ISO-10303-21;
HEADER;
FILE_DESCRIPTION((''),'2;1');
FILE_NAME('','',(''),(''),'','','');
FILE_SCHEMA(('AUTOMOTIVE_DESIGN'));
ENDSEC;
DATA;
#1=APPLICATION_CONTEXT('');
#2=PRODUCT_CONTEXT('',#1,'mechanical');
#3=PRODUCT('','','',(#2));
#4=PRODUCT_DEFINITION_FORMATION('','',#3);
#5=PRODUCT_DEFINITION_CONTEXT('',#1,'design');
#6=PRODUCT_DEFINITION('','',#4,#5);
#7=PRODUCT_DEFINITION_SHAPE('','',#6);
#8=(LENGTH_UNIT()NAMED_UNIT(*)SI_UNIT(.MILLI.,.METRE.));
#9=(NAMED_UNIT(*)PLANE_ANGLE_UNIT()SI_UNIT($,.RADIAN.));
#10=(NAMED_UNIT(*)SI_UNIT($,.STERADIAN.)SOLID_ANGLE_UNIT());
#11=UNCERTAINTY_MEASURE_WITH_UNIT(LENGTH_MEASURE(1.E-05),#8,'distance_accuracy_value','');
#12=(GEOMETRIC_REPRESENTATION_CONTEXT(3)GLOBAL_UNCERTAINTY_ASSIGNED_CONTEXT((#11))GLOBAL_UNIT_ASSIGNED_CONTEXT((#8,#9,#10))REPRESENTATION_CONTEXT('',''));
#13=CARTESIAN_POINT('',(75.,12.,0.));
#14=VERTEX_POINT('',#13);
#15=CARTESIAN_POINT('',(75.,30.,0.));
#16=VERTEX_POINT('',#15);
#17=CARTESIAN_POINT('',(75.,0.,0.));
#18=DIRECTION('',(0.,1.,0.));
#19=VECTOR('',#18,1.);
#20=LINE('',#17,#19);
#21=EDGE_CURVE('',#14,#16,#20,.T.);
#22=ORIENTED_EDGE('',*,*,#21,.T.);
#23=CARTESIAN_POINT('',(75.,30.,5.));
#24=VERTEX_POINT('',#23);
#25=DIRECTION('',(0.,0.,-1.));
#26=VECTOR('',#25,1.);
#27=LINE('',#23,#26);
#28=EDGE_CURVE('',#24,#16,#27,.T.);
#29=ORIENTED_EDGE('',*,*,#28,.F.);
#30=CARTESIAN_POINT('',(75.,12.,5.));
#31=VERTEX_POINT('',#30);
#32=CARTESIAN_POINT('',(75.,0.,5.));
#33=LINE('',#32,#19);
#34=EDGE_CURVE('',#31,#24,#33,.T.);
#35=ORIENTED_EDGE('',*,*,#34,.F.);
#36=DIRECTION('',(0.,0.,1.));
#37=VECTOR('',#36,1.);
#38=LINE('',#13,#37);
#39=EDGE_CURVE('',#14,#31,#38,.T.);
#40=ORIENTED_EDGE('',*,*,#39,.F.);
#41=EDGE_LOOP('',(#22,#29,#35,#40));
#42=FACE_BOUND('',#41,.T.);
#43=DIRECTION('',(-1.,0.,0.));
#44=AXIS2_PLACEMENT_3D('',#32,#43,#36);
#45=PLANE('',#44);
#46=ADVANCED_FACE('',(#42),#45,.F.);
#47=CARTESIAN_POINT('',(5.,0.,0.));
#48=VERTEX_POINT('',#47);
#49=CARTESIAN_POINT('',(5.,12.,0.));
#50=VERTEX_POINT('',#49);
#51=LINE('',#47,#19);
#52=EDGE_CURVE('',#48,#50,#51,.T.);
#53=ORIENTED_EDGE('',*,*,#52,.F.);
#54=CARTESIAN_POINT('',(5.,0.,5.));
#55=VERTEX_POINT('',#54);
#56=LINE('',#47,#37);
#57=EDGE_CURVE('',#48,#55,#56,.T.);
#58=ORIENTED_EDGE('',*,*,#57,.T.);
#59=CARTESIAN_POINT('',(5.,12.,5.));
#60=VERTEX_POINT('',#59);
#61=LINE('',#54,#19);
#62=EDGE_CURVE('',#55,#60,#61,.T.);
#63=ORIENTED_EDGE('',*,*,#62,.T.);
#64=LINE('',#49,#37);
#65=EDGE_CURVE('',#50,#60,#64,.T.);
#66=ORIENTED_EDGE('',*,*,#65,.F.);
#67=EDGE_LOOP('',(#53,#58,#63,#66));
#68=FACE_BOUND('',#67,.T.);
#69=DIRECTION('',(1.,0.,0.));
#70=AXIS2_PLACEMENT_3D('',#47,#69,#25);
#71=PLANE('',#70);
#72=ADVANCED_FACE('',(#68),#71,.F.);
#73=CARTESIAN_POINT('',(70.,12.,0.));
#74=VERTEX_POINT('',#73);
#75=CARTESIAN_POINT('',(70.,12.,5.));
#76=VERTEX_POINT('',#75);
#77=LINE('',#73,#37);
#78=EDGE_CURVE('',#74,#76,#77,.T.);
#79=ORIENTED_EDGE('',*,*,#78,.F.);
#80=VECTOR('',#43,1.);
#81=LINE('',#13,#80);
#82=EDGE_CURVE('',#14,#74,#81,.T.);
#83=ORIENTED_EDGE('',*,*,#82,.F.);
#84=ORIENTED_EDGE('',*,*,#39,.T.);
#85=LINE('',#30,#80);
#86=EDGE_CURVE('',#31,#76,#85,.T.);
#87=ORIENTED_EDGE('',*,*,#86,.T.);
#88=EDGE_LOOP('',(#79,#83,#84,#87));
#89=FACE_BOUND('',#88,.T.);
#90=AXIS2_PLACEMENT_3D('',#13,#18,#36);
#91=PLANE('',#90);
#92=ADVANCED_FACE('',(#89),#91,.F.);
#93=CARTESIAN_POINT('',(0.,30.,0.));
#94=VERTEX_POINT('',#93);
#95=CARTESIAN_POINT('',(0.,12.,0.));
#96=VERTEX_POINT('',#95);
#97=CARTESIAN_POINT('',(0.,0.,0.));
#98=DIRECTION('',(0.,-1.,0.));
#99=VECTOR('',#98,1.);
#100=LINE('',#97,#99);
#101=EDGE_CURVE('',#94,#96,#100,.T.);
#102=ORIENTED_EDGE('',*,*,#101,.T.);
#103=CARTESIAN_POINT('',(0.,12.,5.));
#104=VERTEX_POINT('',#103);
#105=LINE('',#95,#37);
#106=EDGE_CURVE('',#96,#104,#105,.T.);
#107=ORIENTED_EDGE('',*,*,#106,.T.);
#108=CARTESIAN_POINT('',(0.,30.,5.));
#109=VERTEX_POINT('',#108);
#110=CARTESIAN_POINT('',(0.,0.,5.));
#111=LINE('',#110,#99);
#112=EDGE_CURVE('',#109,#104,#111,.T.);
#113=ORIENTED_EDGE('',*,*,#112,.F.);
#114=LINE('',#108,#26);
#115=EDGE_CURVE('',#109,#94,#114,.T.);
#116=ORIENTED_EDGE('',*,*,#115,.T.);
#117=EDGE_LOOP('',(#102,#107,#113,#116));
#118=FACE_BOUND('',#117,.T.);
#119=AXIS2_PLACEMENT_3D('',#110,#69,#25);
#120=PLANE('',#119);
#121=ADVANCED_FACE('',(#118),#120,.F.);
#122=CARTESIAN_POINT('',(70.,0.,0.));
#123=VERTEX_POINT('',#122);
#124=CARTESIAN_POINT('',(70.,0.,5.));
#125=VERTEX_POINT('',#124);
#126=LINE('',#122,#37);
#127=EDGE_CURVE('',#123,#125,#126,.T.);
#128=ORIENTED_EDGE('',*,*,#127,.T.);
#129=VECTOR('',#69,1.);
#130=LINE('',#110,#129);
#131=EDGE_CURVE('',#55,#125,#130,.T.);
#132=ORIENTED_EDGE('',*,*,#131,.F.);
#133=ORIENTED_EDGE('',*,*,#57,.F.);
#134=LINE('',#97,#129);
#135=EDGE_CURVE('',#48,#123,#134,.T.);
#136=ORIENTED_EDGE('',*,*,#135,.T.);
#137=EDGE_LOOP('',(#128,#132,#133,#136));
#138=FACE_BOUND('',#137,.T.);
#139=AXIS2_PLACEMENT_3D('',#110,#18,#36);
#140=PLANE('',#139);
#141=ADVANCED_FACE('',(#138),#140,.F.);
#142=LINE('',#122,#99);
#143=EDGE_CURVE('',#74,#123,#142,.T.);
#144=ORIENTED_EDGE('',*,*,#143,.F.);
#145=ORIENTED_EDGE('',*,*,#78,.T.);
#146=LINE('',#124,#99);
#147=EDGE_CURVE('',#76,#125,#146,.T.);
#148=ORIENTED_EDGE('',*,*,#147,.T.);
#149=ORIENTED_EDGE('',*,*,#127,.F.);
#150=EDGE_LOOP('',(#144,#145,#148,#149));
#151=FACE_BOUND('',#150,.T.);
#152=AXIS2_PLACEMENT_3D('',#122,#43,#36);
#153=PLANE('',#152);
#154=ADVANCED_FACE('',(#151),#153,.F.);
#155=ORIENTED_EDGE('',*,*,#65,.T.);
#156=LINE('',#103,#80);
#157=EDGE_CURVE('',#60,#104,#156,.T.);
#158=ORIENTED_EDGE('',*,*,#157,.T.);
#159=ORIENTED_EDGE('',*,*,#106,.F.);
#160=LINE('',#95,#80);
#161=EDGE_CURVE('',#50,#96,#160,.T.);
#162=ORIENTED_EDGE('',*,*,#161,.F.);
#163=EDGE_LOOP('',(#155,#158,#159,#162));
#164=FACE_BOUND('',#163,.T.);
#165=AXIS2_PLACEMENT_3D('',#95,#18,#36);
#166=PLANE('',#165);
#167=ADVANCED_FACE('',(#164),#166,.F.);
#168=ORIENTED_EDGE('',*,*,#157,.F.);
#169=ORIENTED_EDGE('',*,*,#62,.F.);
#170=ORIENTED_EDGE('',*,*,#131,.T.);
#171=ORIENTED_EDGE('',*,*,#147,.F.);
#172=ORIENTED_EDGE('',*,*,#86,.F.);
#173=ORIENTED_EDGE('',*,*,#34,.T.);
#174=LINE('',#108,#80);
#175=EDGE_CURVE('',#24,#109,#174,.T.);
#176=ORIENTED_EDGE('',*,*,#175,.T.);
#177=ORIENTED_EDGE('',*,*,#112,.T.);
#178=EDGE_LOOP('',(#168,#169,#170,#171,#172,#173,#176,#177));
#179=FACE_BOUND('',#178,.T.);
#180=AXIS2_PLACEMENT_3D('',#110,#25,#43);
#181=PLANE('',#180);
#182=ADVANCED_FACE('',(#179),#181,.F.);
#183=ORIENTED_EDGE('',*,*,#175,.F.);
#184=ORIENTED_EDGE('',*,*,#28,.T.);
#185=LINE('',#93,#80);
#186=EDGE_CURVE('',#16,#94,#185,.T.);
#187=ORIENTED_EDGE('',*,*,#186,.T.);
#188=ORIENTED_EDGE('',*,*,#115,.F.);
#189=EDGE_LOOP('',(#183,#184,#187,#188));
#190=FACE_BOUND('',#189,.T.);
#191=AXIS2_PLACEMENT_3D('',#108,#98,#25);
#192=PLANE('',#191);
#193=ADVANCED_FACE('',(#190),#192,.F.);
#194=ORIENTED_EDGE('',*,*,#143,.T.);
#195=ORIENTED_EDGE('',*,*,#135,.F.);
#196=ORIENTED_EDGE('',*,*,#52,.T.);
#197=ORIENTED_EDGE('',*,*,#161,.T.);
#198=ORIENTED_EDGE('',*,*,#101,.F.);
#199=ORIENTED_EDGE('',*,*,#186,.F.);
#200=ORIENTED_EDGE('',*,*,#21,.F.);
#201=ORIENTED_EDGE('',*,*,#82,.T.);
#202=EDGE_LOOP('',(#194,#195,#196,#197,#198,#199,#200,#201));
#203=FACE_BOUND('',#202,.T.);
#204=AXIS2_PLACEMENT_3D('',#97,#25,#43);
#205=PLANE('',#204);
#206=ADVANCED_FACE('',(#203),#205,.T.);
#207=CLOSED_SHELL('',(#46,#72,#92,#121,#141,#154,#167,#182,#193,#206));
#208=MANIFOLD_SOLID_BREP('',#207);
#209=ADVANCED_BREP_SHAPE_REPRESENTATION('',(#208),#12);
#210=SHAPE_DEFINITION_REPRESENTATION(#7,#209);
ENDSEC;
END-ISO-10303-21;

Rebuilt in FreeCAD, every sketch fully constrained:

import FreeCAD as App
import Part
import Sketcher

V = App.Vector
Q = App.Units.Quantity

doc = App.newDocument("Part")
body = doc.addObject("PartDesign::Body", "Body")

sketch1 = body.newObject("Sketcher::SketchObject", "Sketch")
sketch1.AttachmentSupport = (doc.getObject("XY_Plane"), [""])
sketch1.MapMode = "FlatFace"
sketch1.addGeometry([
    Part.LineSegment(V(0, 30, 0), V(0, 0, 0)),
    Part.LineSegment(V(0, 0, 0), V(75, 0, 0)),
    Part.LineSegment(V(75, 0, 0), V(75, 30, 0)),
    Part.LineSegment(V(75, 30, 0), V(0, 30, 0)),
], False)
sketch1.addConstraint([
    Sketcher.Constraint("Coincident", 0, 2, 1, 1),
    Sketcher.Constraint("Coincident", 1, 2, 2, 1),
    Sketcher.Constraint("Coincident", 2, 2, 3, 1),
    Sketcher.Constraint("Coincident", 3, 2, 0, 1),
    Sketcher.Constraint("Vertical", 0),
    Sketcher.Constraint("Horizontal", 1),
    Sketcher.Constraint("Vertical", 2),
    Sketcher.Constraint("Horizontal", 3),
    Sketcher.Constraint("Coincident", 0, 2, -1, 1),
    Sketcher.Constraint("DistanceX", 1, 1, 1, 2, Q("75 mm")),
    Sketcher.Constraint("DistanceY", 0, 2, 0, 1, Q("30 mm")),
])
pad1 = body.newObject("PartDesign::Pad", "Pad")
pad1.Profile = sketch1
pad1.Length = 5

sketch2 = body.newObject("Sketcher::SketchObject", "Sketch001")
sketch2.AttachmentSupport = (doc.getObject("XY_Plane"), [""])
sketch2.MapMode = "FlatFace"
sketch2.AttachmentOffset = App.Placement(V(0, 0, 5), App.Rotation())
sketch2.addGeometry([
    Part.LineSegment(V(0, 12, 0), V(0, 0, 0)),
    Part.LineSegment(V(0, 0, 0), V(5, 0, 0)),
    Part.LineSegment(V(5, 0, 0), V(5, 12, 0)),
    Part.LineSegment(V(5, 12, 0), V(0, 12, 0)),
    Part.LineSegment(V(70, 12, 0), V(70, 0, 0)),
    Part.LineSegment(V(70, 0, 0), V(75, 0, 0)),
    Part.LineSegment(V(75, 0, 0), V(75, 12, 0)),
    Part.LineSegment(V(75, 12, 0), V(70, 12, 0)),
], False)
sketch2.addConstraint([
    Sketcher.Constraint("Coincident", 0, 2, 1, 1),
    Sketcher.Constraint("Coincident", 1, 2, 2, 1),
    Sketcher.Constraint("Coincident", 2, 2, 3, 1),
    Sketcher.Constraint("Coincident", 3, 2, 0, 1),
    Sketcher.Constraint("Coincident", 4, 2, 5, 1),
    Sketcher.Constraint("Coincident", 5, 2, 6, 1),
    Sketcher.Constraint("Coincident", 6, 2, 7, 1),
    Sketcher.Constraint("Coincident", 7, 2, 4, 1),
    Sketcher.Constraint("Vertical", 0),
    Sketcher.Constraint("Horizontal", 1),
    Sketcher.Constraint("Vertical", 2),
    Sketcher.Constraint("Horizontal", 3),
    Sketcher.Constraint("Vertical", 4),
    Sketcher.Constraint("Horizontal", 5),
    Sketcher.Constraint("Vertical", 6),
    Sketcher.Constraint("Horizontal", 7),
    Sketcher.Constraint("Coincident", 0, 2, -1, 1),
    Sketcher.Constraint("PointOnObject", 4, 2, -1),
    Sketcher.Constraint("Horizontal", 3, 2, 6, 2),
    Sketcher.Constraint("Equal", 3, 5),
    Sketcher.Constraint("DistanceX", 1, 1, 1, 2, Q("5 mm")),
    Sketcher.Constraint("DistanceY", 0, 2, 0, 1, Q("12 mm")),
    Sketcher.Constraint("DistanceX", -1, 1, 4, 2, Q("70 mm")),
])
pocket1 = body.newObject("PartDesign::Pocket", "Pocket")
pocket1.Profile = sketch2
pocket1.Type = "ThroughAll"

doc.recompute()
